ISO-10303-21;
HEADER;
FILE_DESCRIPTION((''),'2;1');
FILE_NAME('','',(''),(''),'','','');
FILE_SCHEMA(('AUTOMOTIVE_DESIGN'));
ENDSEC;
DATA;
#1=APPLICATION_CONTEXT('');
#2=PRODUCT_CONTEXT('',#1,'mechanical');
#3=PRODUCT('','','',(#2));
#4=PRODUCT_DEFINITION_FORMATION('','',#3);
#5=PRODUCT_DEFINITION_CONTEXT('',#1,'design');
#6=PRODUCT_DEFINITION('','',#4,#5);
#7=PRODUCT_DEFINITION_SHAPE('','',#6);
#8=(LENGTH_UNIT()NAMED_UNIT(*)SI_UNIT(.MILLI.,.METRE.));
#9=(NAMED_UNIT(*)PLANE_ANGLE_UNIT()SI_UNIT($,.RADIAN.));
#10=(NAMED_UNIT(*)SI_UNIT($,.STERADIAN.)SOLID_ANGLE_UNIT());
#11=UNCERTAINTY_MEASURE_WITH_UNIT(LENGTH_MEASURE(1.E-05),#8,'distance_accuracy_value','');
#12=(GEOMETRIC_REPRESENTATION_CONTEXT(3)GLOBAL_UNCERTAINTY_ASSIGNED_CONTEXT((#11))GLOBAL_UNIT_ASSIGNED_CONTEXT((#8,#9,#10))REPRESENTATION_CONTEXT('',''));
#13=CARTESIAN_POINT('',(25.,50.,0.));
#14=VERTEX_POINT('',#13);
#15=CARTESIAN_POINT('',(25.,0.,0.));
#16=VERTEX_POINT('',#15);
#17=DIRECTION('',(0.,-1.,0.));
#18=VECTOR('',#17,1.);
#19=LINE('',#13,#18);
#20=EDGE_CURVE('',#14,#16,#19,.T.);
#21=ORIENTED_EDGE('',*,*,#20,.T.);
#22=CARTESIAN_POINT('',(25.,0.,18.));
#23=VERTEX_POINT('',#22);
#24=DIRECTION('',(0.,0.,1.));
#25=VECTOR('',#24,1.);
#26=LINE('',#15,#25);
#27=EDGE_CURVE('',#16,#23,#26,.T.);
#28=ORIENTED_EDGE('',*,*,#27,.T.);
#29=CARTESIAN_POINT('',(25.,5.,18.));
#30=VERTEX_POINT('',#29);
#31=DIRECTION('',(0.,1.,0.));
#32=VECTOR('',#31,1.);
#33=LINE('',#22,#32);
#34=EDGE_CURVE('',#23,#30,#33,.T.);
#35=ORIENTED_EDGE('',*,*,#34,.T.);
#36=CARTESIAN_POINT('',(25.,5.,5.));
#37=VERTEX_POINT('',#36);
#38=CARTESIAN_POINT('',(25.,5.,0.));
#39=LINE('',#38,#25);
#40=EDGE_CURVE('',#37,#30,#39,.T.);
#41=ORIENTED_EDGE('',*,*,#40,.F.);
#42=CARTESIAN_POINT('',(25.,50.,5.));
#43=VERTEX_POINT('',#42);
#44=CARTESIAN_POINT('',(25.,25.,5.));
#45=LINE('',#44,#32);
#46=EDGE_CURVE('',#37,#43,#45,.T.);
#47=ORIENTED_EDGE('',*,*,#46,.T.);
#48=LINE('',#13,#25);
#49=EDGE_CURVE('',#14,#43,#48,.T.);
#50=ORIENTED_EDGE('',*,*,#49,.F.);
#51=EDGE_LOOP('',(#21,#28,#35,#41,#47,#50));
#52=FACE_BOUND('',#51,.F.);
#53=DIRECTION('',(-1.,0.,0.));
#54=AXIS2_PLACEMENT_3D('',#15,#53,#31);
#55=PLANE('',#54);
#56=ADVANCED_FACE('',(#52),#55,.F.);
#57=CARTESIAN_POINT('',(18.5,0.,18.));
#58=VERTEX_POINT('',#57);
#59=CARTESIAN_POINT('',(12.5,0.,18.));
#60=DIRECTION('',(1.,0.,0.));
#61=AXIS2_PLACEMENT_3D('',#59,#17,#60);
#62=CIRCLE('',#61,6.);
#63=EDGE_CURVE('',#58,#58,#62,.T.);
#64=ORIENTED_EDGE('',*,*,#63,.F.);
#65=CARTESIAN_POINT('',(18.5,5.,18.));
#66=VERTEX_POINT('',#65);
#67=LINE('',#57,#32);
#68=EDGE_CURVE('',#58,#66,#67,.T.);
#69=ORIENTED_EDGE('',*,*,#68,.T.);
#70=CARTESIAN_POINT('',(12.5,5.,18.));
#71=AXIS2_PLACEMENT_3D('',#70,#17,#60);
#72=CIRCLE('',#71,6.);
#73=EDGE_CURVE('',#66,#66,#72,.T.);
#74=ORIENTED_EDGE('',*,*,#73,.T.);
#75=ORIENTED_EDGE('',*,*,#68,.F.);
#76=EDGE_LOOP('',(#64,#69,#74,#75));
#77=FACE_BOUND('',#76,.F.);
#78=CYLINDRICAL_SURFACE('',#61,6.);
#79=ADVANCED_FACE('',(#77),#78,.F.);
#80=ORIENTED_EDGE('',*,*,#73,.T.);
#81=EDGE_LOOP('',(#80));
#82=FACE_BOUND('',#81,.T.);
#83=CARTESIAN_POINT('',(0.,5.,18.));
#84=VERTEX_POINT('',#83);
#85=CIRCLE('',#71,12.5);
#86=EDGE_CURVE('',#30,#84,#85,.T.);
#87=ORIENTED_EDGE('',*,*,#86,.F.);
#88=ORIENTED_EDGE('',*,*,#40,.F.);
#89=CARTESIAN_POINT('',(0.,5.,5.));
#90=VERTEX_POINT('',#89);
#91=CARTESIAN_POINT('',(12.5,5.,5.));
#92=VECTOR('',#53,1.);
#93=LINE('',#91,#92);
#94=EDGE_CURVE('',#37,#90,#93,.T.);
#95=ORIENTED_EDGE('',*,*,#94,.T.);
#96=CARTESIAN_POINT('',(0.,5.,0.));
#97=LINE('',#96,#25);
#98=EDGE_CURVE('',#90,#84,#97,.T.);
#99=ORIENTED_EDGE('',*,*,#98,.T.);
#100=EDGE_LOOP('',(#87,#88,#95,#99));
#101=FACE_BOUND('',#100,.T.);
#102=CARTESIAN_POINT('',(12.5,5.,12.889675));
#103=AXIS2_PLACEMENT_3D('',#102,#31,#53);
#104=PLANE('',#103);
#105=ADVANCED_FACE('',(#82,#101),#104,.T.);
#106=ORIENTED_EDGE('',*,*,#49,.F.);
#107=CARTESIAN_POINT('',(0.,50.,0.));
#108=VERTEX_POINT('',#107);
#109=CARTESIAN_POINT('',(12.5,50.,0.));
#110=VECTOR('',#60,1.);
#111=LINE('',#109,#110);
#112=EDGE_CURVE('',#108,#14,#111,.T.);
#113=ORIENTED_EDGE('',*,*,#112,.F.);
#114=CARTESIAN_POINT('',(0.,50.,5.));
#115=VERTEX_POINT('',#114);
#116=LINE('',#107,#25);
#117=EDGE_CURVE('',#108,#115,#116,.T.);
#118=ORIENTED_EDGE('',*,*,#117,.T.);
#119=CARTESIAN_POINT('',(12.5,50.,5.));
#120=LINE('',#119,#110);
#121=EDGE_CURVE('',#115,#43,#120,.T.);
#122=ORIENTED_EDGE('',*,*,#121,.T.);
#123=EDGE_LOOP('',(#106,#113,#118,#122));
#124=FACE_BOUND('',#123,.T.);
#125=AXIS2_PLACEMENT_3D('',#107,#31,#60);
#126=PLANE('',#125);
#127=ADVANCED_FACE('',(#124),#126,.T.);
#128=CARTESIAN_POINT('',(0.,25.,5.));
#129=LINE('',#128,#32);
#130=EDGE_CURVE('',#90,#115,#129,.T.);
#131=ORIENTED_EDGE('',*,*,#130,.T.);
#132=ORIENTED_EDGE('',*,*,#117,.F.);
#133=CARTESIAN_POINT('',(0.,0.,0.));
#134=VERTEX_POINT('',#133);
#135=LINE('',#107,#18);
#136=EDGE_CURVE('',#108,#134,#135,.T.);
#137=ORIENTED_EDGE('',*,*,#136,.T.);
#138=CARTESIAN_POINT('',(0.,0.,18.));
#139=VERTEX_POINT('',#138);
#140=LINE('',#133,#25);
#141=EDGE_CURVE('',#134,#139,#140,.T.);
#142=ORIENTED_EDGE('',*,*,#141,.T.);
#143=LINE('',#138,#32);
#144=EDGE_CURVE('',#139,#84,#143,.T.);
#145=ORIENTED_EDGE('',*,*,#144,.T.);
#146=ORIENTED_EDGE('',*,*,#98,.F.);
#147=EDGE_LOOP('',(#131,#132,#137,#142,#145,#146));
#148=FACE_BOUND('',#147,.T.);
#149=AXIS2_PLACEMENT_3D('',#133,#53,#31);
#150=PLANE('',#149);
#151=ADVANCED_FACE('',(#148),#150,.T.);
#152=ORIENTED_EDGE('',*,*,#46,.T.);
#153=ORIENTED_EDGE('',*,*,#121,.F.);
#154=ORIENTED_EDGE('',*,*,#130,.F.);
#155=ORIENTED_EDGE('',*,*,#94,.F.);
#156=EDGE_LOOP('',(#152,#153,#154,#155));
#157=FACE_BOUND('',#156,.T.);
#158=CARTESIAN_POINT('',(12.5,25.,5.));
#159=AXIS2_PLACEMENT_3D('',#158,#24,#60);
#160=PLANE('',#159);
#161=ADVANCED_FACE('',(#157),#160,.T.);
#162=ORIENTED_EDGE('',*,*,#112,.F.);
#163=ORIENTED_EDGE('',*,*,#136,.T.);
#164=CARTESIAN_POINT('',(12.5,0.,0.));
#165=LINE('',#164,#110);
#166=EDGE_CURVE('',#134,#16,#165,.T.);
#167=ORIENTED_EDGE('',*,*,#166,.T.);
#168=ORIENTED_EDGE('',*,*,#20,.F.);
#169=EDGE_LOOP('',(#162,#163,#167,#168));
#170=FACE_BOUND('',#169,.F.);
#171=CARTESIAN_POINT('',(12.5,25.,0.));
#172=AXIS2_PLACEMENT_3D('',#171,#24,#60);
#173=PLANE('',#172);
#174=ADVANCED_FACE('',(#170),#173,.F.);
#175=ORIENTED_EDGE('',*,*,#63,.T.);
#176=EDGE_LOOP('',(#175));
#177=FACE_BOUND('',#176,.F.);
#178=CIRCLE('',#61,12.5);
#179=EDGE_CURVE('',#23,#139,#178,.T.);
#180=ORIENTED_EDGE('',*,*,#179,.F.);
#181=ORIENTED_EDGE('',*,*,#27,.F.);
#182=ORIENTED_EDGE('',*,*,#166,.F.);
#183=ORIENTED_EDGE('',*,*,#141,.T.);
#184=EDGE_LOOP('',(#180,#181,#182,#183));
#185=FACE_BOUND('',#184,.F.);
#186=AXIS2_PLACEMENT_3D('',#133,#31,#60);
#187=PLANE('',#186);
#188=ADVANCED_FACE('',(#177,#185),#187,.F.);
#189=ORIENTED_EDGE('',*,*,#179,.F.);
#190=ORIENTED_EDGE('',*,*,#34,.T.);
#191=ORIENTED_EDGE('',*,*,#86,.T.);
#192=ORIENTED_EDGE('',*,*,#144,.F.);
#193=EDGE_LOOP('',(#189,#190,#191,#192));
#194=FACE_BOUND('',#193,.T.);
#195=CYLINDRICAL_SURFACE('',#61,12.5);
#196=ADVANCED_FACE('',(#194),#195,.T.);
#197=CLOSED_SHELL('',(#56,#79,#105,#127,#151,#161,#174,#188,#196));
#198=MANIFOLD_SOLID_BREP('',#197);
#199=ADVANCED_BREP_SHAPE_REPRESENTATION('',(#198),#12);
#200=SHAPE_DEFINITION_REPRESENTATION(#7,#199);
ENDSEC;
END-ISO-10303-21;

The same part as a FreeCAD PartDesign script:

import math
import FreeCAD as App
import Part
import Sketcher
Q = App.Units.Quantity

doc = App.newDocument("Part")
body = doc.addObject("PartDesign::Body", "Body")

# Sketch on XY plane
sketch1 = body.newObject("Sketcher::SketchObject", "Sketch")
sketch1.AttachmentSupport = (doc.getObject("XY_Plane"), [""])
sketch1.MapMode = "FlatFace"
sketch1.addGeometry([
    Part.LineSegment(App.Vector(0, 50, 0), App.Vector(0, 0, 0)),
    Part.LineSegment(App.Vector(0, 0, 0), App.Vector(25, 0, 0)),
    Part.LineSegment(App.Vector(25, 0, 0), App.Vector(25, 50, 0)),
    Part.LineSegment(App.Vector(25, 50, 0), App.Vector(0, 50, 0)),
], False)
sketch1.addConstraint([
    Sketcher.Constraint("Coincident", 0, 2, 1, 1),
    Sketcher.Constraint("Coincident", 1, 2, 2, 1),
    Sketcher.Constraint("Coincident", 2, 2, 3, 1),
    Sketcher.Constraint("Coincident", 3, 2, 0, 1),
    Sketcher.Constraint("Vertical", 0),
    Sketcher.Constraint("Horizontal", 1),
    Sketcher.Constraint("Vertical", 2),
    Sketcher.Constraint("Horizontal", 3),
    Sketcher.Constraint("Coincident", 0, 2, -1, 1),
    Sketcher.Constraint("DistanceX", 1, 1, 1, 2, Q("25 mm")),
    Sketcher.Constraint("DistanceY", 0, 2, 0, 1, Q("50 mm")),
])
pad1 = body.newObject("PartDesign::Pad", "Pad")
pad1.Profile = sketch1
pad1.Length = 5

# Sketch on XZ plane
sketch2 = body.newObject("Sketcher::SketchObject", "Sketch001")
sketch2.AttachmentSupport = (doc.getObject("XZ_Plane"), [""])
sketch2.MapMode = "FlatFace"
sketch2.addGeometry([
    Part.LineSegment(App.Vector(0, 18, 0), App.Vector(0, 0, 0)),  # 0
    Part.LineSegment(App.Vector(0, 0, 0), App.Vector(25, 0, 0)),  # 1
    Part.LineSegment(App.Vector(25, 0, 0), App.Vector(25, 18, 0)),  # 2
    Part.ArcOfCircle(Part.Circle(App.Vector(12, 18, 0), App.Vector(0, 0, 1), 12), math.radians(0), math.radians(180)),  # 3
    Part.Circle(App.Vector(12, 18, 0), App.Vector(0, 0, 1), 6),  # 4
], False)
sketch2.addConstraint([
    Sketcher.Constraint("Coincident", 0, 2, 1, 1),
    Sketcher.Constraint("Coincident", 1, 2, 2, 1),
    Sketcher.Constraint("Tangent", 2, 2, 3, 1),
    Sketcher.Constraint("Tangent", 3, 2, 0, 1),
    Sketcher.Constraint("Vertical", 0),
    Sketcher.Constraint("Horizontal", 1),
    Sketcher.Constraint("Vertical", 2),
    Sketcher.Constraint("Coincident", 0, 2, -1, 1),
    Sketcher.Constraint("Coincident", 4, 3, 3, 3),
    Sketcher.Constraint("Diameter", 4, Q("12 mm")),
    Sketcher.Constraint("Radius", 3, Q("12.5 mm")),
    Sketcher.Constraint("DistanceY", 0, 2, 0, 1, Q("18 mm")),
])
pad2 = body.newObject("PartDesign::Pad", "Pad001")
pad2.Profile = sketch2
pad2.Length = 5
pad2.Reversed = True

doc.recompute()
